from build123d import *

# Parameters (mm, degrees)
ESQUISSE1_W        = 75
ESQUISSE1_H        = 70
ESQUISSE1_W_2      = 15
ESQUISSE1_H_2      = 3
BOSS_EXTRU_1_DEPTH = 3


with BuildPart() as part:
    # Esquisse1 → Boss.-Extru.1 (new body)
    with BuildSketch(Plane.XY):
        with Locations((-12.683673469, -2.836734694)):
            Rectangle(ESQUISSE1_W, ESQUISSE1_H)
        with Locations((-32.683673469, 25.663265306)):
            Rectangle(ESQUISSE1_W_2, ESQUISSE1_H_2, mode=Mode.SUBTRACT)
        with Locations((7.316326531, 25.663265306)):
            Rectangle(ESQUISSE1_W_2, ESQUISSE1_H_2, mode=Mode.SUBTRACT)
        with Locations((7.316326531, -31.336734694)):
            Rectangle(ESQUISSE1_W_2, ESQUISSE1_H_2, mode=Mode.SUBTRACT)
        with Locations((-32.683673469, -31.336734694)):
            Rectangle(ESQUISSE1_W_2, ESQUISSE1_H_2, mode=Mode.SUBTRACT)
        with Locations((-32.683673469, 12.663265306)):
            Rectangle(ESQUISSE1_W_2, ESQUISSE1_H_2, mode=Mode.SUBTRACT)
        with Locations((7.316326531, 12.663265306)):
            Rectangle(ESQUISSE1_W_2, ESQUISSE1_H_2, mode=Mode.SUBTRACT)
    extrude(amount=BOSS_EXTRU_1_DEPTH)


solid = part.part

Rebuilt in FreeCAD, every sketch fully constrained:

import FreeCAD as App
import Part
import Sketcher

doc = App.newDocument("Part")
params = doc.addObject("Spreadsheet::Sheet", "Params")
for row, (alias, value) in enumerate([
    ("sketch1_width", "75 mm"),
    ("sketch1_width2", "15 mm"),
    ("sketch1_height", "70 mm"),
    ("sketch1_height2", "3 mm"),
    ("pad1_length", "3 mm"),
], start=1):
    params.set(f"A{row}", alias)
    params.set(f"B{row}", "=" + value)
    params.setAlias(f"B{row}", alias)

body = doc.addObject("PartDesign::Body", "Body")

# Sketch on XY plane
sketch1 = body.newObject("Sketcher::SketchObject", "Sketch")
sketch1.AttachmentSupport = (doc.getObject("XY_Plane"), [""])
sketch1.MapMode = "FlatFace"
sketch1.addGeometry([
    Part.LineSegment(App.Vector(-50.2, 32.2, 0), App.Vector(-50.2, -37.8, 0)),  # 0
    Part.LineSegment(App.Vector(-50.2, -37.8, 0), App.Vector(24.8, -37.8, 0)),  # 1
    Part.LineSegment(App.Vector(24.8, -37.8, 0), App.Vector(24.8, 32.2, 0)),  # 2
    Part.LineSegment(App.Vector(24.8, 32.2, 0), App.Vector(-50.2, 32.2, 0)),  # 3
    Part.LineSegment(App.Vector(-25.2, -32.8, 0), App.Vector(-40.2, -32.8, 0)),  # 4
    Part.LineSegment(App.Vector(-40.2, -32.8, 0), App.Vector(-40.2, -29.8, 0)),  # 5
    Part.LineSegment(App.Vector(-40.2, -29.8, 0), App.Vector(-25.2, -29.8, 0)),  # 6
    Part.LineSegment(App.Vector(-25.2, -29.8, 0), App.Vector(-25.2, -32.8, 0)),  # 7
    Part.LineSegment(App.Vector(14.8, -32.8, 0), App.Vector(-0.2, -32.8, 0)),  # 8
    Part.LineSegment(App.Vector(-0.2, -32.8, 0), App.Vector(-0.2, -29.8, 0)),  # 9
    Part.LineSegment(App.Vector(-0.2, -29.8, 0), App.Vector(14.8, -29.8, 0)),  # 10
    Part.LineSegment(App.Vector(14.8, -29.8, 0), App.Vector(14.8, -32.8, 0)),  # 11
    Part.LineSegment(App.Vector(-25.2, 11.2, 0), App.Vector(-40.2, 11.2, 0)),  # 12
    Part.LineSegment(App.Vector(-40.2, 11.2, 0), App.Vector(-40.2, 14.2, 0)),  # 13
    Part.LineSegment(App.Vector(-40.2, 14.2, 0), App.Vector(-25.2, 14.2, 0)),  # 14
    Part.LineSegment(App.Vector(-25.2, 14.2, 0), App.Vector(-25.2, 11.2, 0)),  # 15
    Part.LineSegment(App.Vector(-25.2, 24.2, 0), App.Vector(-40.2, 24.2, 0)),  # 16
    Part.LineSegment(App.Vector(-40.2, 24.2, 0), App.Vector(-40.2, 27.2, 0)),  # 17
    Part.LineSegment(App.Vector(-40.2, 27.2, 0), App.Vector(-25.2, 27.2, 0)),  # 18
    Part.LineSegment(App.Vector(-25.2, 27.2, 0), App.Vector(-25.2, 24.2, 0)),  # 19
    Part.LineSegment(App.Vector(14.8, 11.2, 0), App.Vector(-0.2, 11.2, 0)),  # 20
    Part.LineSegment(App.Vector(-0.2, 11.2, 0), App.Vector(-0.2, 14.2, 0)),  # 21
    Part.LineSegment(App.Vector(-0.2, 14.2, 0), App.Vector(14.8, 14.2, 0)),  # 22
    Part.LineSegment(App.Vector(14.8, 14.2, 0), App.Vector(14.8, 11.2, 0)),  # 23
    Part.LineSegment(App.Vector(14.8, 24.2, 0), App.Vector(-0.2, 24.2, 0)),  # 24
    Part.LineSegment(App.Vector(-0.2, 24.2, 0), App.Vector(-0.2, 27.2, 0)),  # 25
    Part.LineSegment(App.Vector(-0.2, 27.2, 0), App.Vector(14.8, 27.2, 0)),  # 26
    Part.LineSegment(App.Vector(14.8, 27.2, 0), App.Vector(14.8, 24.2, 0)),  # 27
], False)
sketch1.addConstraint([
    Sketcher.Constraint("Coincident", 0, 2, 1, 1),
    Sketcher.Constraint("Coincident", 1, 2, 2, 1),
    Sketcher.Constraint("Coincident", 2, 2, 3, 1),
    Sketcher.Constraint("Coincident", 3, 2, 0, 1),
    Sketcher.Constraint("Coincident", 4, 2, 5, 1),
    Sketcher.Constraint("Coincident", 5, 2, 6, 1),
    Sketcher.Constraint("Coincident", 6, 2, 7, 1),
    Sketcher.Constraint("Coincident", 7, 2, 4, 1),
    Sketcher.Constraint("Coincident", 8, 2, 9, 1),
    Sketcher.Constraint("Coincident", 9, 2, 10, 1),
    Sketcher.Constraint("Coincident", 10, 2, 11, 1),
    Sketcher.Constraint("Coincident", 11, 2, 8, 1),
    Sketcher.Constraint("Coincident", 12, 2, 13, 1),
    Sketcher.Constraint("Coincident", 13, 2, 14, 1),
    Sketcher.Constraint("Coincident", 14, 2, 15, 1),
    Sketcher.Constraint("Coincident", 15, 2, 12, 1),
    Sketcher.Constraint("Coincident", 16, 2, 17, 1),
    Sketcher.Constraint("Coincident", 17, 2, 18, 1),
    Sketcher.Constraint("Coincident", 18, 2, 19, 1),
    Sketcher.Constraint("Coincident", 19, 2, 16, 1),
    Sketcher.Constraint("Coincident", 20, 2, 21, 1),
    Sketcher.Constraint("Coincident", 21, 2, 22, 1),
    Sketcher.Constraint("Coincident", 22, 2, 23, 1),
    Sketcher.Constraint("Coincident", 23, 2, 20, 1),
    Sketcher.Constraint("Coincident", 24, 2, 25, 1),
    Sketcher.Constraint("Coincident", 25, 2, 26, 1),
    Sketcher.Constraint("Coincident", 26, 2, 27, 1),
    Sketcher.Constraint("Coincident", 27, 2, 24, 1),
    Sketcher.Constraint("Vertical", 0),
    Sketcher.Constraint("Horizontal", 1),
    Sketcher.Constraint("Vertical", 2),
    Sketcher.Constraint("Horizontal", 3),
    Sketcher.Constraint("Horizontal", 4),
    Sketcher.Constraint("Vertical", 5),
    Sketcher.Constraint("Horizontal", 6),
    Sketcher.Constraint("Vertical", 7),
    Sketcher.Constraint("Horizontal", 8),
    Sketcher.Constraint("Vertical", 9),
    Sketcher.Constraint("Horizontal", 10),
    Sketcher.Constraint("Vertical", 11),
    Sketcher.Constraint("Horizontal", 12),
    Sketcher.Constraint("Vertical", 13),
    Sketcher.Constraint("Horizontal", 14),
    Sketcher.Constraint("Vertical", 15),
    Sketcher.Constraint("Horizontal", 16),
    Sketcher.Constraint("Vertical", 17),
    Sketcher.Constraint("Horizontal", 18),
    Sketcher.Constraint("Vertical", 19),
    Sketcher.Constraint("Horizontal", 20),
    Sketcher.Constraint("Vertical", 21),
    Sketcher.Constraint("Horizontal", 22),
    Sketcher.Constraint("Vertical", 23),
    Sketcher.Constraint("Horizontal", 24),
    Sketcher.Constraint("Vertical", 25),
    Sketcher.Constraint("Horizontal", 26),
    Sketcher.Constraint("Vertical", 27),
    Sketcher.Constraint("Horizontal", 7, 2, 8, 2),
    Sketcher.Constraint("Horizontal", 6, 2, 9, 2),
    Sketcher.Constraint("Horizontal", 15, 2, 20, 2),
    Sketcher.Constraint("Horizontal", 14, 2, 21, 2),
    Sketcher.Constraint("Horizontal", 19, 2, 24, 2),
    Sketcher.Constraint("Horizontal", 18, 2, 25, 2),
    Sketcher.Constraint("Vertical", 5, 2, 12, 2),
    Sketcher.Constraint("Vertical", 7, 2, 14, 2),
    Sketcher.Constraint("Vertical", 13, 2, 16, 2),
    Sketcher.Constraint("Vertical", 15, 2, 18, 2),
    Sketcher.Constraint("Vertical", 9, 2, 20, 2),
    Sketcher.Constraint("Vertical", 11, 2, 22, 2),
    Sketcher.Constraint("Vertical", 21, 2, 24, 2),
    Sketcher.Constraint("Vertical", 23, 2, 26, 2),
    Sketcher.Constraint("Equal", 6, 8),
    Sketcher.Constraint("Equal", 11, 13),
    Sketcher.Constraint("Equal", 15, 17),
    Sketcher.Constraint("DistanceX", 1, 1, 1, 2, 75.0),
    Sketcher.Constraint("DistanceX", 4, 2, 4, 1, 15.0),
    Sketcher.Constraint("DistanceY", 0, 2, 0, 1, 70.0),
    Sketcher.Constraint("DistanceY", 5, 1, 5, 2, 3.0),
    Sketcher.Constraint("DistanceX", 0, 2, 4, 2, 10.0),
    Sketcher.Constraint("DistanceY", 0, 2, 4, 2, 5.0),
    Sketcher.Constraint("DistanceX", 7, 2, 8, 2, 25.0),
    Sketcher.Constraint("DistanceY", 12, 2, 3, 2, 21.0),
    Sketcher.Constraint("DistanceY", 13, 2, 16, 2, 10.0),
    Sketcher.Constraint("DistanceX", 0, 2, -1, 1, 50.183673),
    Sketcher.Constraint("DistanceY", 0, 2, -1, 1, 37.836735),
])
sketch1.setExpression("Constraints[73]", "Params.sketch1_width")
sketch1.setExpression("Constraints[74]", "Params.sketch1_width2")
sketch1.setExpression("Constraints[75]", "Params.sketch1_height")
sketch1.setExpression("Constraints[76]", "Params.sketch1_height2")
pad1 = body.newObject("PartDesign::Pad", "Pad")
pad1.Profile = sketch1
pad1.setExpression("Length", "Params.pad1_length")

doc.recompute()
